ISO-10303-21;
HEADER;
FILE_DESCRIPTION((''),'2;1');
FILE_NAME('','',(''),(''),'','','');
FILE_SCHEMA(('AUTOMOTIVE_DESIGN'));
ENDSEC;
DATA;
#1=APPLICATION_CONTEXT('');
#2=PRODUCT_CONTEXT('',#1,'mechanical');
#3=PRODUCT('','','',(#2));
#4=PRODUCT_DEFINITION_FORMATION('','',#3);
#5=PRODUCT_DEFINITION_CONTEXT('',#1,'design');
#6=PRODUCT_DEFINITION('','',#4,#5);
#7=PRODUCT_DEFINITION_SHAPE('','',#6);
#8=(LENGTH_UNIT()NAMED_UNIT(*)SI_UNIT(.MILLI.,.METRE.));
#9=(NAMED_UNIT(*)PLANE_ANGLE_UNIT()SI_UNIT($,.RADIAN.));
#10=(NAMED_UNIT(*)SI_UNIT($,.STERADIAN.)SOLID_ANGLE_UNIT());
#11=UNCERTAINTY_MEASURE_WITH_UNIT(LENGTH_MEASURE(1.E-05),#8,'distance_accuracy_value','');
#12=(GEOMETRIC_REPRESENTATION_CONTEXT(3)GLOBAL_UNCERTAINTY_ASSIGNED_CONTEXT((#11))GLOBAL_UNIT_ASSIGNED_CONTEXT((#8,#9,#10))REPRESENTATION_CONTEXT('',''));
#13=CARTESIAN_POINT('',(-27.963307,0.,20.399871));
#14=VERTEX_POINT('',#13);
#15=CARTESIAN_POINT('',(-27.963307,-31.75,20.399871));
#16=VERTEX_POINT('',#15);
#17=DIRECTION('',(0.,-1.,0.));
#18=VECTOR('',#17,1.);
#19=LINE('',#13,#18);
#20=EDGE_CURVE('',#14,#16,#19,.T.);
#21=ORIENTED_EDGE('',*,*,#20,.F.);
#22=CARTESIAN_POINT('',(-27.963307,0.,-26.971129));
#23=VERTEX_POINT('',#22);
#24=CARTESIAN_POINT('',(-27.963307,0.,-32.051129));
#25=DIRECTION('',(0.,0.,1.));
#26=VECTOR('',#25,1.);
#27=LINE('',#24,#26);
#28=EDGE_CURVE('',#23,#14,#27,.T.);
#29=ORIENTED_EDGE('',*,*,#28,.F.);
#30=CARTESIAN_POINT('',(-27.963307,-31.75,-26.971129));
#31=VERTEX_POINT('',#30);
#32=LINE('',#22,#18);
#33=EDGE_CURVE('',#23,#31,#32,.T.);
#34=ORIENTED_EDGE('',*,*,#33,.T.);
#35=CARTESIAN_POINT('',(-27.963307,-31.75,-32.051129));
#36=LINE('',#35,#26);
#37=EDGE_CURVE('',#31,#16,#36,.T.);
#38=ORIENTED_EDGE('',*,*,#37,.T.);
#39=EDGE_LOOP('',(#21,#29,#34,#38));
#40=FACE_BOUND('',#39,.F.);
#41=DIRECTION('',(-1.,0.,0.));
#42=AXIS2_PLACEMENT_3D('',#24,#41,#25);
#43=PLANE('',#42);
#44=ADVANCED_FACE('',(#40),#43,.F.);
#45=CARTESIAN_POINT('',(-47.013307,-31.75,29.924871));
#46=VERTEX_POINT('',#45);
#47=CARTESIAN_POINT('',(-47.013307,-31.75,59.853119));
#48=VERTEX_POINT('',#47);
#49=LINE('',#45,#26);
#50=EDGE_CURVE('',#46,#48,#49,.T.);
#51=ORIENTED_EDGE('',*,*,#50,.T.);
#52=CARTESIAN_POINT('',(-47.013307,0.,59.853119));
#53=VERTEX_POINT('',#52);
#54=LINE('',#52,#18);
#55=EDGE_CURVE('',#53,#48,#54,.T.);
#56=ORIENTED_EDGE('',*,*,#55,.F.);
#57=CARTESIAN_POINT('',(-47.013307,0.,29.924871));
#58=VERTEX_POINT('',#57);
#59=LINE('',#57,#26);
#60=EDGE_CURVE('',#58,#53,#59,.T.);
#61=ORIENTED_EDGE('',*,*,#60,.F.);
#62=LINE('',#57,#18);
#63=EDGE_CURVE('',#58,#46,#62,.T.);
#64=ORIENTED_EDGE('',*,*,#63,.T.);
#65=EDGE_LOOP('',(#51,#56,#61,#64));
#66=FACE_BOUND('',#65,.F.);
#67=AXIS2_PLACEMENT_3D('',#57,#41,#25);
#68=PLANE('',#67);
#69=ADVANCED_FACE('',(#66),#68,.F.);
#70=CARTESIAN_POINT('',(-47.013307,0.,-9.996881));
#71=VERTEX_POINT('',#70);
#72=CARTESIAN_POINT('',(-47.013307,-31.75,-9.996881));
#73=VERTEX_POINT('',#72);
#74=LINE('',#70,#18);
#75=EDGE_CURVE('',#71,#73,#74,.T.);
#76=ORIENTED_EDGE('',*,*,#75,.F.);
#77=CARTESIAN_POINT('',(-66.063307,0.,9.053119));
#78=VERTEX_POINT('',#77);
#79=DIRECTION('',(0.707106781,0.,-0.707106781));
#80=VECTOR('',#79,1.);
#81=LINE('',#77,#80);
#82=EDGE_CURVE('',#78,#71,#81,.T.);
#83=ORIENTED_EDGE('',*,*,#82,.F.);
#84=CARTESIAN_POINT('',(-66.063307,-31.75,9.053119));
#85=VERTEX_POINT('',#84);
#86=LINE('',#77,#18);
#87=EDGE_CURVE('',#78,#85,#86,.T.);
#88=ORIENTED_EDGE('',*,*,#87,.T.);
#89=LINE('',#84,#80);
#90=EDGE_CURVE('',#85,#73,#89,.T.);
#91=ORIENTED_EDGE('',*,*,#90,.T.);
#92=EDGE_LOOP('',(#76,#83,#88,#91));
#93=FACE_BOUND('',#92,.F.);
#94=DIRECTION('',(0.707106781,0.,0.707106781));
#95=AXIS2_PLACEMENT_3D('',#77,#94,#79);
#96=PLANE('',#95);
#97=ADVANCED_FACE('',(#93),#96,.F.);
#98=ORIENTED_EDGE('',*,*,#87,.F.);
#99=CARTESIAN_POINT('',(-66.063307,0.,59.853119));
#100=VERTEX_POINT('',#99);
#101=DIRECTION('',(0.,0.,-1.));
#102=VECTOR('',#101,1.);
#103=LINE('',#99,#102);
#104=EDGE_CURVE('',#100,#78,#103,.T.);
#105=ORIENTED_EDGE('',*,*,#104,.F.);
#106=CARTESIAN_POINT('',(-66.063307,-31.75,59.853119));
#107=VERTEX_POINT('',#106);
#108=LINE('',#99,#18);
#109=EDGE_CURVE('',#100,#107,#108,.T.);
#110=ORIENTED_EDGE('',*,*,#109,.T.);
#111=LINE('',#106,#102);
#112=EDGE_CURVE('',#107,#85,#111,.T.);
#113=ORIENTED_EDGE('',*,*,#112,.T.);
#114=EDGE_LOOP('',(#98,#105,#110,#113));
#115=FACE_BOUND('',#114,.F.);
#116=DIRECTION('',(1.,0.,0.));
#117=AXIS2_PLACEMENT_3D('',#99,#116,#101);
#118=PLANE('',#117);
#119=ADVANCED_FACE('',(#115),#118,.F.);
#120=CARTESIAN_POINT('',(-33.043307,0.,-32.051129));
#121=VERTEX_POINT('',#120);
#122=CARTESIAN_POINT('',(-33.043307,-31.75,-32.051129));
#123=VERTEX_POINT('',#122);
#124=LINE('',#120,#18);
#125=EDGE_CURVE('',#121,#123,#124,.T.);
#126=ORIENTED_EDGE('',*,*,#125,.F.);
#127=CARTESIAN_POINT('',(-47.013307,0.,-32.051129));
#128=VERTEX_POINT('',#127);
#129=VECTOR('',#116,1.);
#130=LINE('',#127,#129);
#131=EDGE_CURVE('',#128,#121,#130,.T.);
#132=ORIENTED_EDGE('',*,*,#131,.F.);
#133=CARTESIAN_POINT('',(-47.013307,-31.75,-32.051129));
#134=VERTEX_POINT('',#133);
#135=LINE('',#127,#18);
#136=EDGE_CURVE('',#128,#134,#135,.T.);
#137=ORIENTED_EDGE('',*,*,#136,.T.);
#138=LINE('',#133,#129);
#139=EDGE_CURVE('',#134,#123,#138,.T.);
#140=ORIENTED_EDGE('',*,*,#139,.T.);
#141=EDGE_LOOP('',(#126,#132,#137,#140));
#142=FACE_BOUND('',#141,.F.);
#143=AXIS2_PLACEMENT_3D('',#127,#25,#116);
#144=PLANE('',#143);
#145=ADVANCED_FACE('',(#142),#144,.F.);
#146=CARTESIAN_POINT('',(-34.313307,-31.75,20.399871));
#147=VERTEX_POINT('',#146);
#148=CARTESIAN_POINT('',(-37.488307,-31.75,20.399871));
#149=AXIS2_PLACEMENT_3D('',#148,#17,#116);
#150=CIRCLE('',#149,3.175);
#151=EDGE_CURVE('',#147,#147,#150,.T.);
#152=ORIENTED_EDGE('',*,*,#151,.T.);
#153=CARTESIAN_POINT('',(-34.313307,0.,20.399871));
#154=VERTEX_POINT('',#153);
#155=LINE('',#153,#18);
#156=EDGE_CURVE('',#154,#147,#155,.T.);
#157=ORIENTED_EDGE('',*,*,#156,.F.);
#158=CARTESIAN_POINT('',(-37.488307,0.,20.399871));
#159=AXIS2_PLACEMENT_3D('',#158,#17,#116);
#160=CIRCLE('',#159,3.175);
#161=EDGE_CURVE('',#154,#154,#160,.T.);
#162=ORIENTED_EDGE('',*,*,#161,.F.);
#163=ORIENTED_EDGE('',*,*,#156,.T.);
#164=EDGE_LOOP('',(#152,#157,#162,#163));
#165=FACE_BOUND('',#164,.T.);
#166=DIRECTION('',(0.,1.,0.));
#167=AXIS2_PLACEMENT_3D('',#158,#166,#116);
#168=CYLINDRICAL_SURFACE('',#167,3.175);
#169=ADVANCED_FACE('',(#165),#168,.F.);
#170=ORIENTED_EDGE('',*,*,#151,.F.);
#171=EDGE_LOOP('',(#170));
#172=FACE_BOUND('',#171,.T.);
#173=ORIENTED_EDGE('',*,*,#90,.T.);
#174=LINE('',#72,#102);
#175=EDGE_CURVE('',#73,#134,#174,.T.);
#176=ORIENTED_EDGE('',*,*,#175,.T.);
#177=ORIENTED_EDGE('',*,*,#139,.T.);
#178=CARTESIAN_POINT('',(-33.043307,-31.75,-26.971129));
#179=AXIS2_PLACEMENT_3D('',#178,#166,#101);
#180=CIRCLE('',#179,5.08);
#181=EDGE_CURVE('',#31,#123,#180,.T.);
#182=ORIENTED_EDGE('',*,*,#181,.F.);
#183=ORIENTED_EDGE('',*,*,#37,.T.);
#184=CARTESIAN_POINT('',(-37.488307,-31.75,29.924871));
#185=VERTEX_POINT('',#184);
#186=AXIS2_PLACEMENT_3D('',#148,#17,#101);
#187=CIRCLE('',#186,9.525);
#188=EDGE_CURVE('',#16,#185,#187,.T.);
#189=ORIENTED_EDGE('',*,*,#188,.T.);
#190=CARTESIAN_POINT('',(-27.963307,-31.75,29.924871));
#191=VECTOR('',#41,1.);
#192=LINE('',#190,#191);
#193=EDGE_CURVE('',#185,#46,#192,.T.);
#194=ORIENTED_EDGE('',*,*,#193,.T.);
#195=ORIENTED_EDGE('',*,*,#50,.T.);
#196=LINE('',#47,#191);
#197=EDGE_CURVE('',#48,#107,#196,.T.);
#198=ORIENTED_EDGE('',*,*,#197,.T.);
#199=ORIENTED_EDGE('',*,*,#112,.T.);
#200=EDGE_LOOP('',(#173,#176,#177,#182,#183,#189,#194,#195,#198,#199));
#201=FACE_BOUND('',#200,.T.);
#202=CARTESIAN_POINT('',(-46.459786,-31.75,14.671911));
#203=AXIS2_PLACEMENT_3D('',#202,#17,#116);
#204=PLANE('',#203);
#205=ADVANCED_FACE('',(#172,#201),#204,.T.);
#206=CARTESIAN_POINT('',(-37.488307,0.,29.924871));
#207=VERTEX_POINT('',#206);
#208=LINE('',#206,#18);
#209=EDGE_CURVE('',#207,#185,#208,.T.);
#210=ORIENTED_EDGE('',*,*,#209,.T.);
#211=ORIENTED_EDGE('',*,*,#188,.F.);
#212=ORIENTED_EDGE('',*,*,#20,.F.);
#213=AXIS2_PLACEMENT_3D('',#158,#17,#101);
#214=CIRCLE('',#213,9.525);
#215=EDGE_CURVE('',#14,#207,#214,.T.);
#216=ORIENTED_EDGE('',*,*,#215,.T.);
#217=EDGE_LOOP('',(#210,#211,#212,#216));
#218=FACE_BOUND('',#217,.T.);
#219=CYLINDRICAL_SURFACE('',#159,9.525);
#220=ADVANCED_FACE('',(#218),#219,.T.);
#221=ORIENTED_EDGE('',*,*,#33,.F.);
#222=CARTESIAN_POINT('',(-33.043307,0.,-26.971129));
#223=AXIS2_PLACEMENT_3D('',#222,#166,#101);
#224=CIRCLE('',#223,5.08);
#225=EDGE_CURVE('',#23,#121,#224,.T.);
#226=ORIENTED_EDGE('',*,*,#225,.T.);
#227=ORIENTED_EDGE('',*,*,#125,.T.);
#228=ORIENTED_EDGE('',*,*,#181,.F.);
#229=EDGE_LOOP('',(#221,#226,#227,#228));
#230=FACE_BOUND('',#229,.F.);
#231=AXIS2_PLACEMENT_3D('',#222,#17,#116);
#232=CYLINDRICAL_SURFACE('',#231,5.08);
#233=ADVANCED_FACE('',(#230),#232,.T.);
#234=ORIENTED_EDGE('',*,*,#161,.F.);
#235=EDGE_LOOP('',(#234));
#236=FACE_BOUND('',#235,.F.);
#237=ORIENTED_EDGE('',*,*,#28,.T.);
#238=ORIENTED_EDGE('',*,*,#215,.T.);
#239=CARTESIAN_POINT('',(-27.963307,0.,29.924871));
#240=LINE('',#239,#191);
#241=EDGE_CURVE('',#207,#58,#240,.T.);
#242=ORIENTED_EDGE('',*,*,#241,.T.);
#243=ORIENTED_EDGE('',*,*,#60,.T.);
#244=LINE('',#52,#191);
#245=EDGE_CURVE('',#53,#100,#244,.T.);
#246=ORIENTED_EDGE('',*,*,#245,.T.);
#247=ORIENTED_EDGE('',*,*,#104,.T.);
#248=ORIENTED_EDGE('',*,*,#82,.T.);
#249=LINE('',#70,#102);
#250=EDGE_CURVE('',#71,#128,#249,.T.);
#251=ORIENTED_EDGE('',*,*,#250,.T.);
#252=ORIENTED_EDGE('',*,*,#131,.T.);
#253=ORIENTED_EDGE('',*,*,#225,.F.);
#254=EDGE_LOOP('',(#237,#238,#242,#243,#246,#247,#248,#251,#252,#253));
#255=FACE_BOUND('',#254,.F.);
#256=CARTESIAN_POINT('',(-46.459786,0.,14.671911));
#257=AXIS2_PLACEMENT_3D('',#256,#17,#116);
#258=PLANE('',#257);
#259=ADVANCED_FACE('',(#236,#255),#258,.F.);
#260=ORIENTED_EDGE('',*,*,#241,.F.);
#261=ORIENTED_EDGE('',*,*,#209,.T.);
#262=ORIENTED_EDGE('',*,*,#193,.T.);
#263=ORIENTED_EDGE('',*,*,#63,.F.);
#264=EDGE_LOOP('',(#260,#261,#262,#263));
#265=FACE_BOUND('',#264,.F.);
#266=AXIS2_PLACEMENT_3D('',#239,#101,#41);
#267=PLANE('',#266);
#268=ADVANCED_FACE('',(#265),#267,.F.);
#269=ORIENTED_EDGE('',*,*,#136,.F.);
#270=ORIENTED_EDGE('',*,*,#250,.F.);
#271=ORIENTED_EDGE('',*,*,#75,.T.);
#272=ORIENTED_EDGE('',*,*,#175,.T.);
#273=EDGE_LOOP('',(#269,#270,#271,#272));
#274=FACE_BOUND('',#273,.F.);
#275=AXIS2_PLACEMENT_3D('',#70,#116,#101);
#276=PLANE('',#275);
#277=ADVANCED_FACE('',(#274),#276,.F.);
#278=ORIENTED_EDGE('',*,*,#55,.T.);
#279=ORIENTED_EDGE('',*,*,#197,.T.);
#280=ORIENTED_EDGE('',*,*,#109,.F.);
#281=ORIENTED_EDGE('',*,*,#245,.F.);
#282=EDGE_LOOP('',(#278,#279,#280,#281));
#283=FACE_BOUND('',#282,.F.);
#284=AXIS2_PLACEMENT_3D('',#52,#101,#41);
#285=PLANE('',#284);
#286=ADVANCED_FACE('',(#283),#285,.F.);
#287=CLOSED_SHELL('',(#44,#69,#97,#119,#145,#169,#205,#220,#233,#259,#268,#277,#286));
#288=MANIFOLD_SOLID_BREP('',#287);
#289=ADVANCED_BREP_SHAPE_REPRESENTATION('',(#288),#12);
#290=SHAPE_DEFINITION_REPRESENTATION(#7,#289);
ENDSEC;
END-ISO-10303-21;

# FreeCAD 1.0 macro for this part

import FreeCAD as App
import Part
import Sketcher
from FreeCAD import Vector
Q = App.Units.Quantity


def edges_at(feature, points):
    """Names of the edges that pass closest to the given points."""
    edges = feature.Shape.Edges
    near = lambda p: min(range(len(edges)), key=lambda i: edges[i].distToShape(Part.Vertex(*p))[0])
    return sorted({f"Edge{near(p) + 1}" for p in points})


def add_polygon(sketch, points):
    """Adds a closed chain of lines whose ends are joined by coincident constraints."""
    first, n = sketch.GeometryCount, len(points)
    for a, b in zip(points, points[1:] + points[:1]):
        sketch.addGeometry(Part.LineSegment(App.Vector(*a, 0), App.Vector(*b, 0)), False)
    for i in range(n):
        sketch.addConstraint(Sketcher.Constraint("Coincident", first + i, 2, first + (i + 1) % n, 1))

doc = App.newDocument("Part")
body = doc.addObject("PartDesign::Body", "Body")

sketch1 = body.newObject("Sketcher::SketchObject", "Sketch")
sketch1.AttachmentSupport = (doc.getObject("XZ_Plane"), [""])
sketch1.MapMode = "FlatFace"
add_polygon(sketch1, [(-27.963307, 29.924871), (-47.013307, 29.924871), (-47.013307, 59.853119), (-66.063307, 59.853119), (-66.063307, 9.053119), (-47.013307, -9.996881), (-47.013307, -32.051129), (-27.963307, -32.051129)])
sketch1.addGeometry(Part.Circle(Vector(-37.488307, 20.399871, 0), Vector(0, 0, 1), 3.175), False)
sketch1.addConstraint(Sketcher.Constraint("Horizontal", 0))
sketch1.addConstraint(Sketcher.Constraint("Vertical", 1))
sketch1.addConstraint(Sketcher.Constraint("Horizontal", 2))
sketch1.addConstraint(Sketcher.Constraint("Vertical", 3))
sketch1.addConstraint(Sketcher.Constraint("Vertical", 5))
sketch1.addConstraint(Sketcher.Constraint("Horizontal", 6))
sketch1.addConstraint(Sketcher.Constraint("Vertical", 7))
sketch1.addConstraint(Sketcher.Constraint("Vertical", 1, 2, 4, 2))
sketch1.addConstraint(Sketcher.Constraint("Equal", 0, 2))
sketch1.addConstraint(Sketcher.Constraint("Diameter", 8, Q("0.25 in")))
sketch1.addConstraint(Sketcher.Constraint("DistanceY", 3, 2, 3, 1, Q("2 in")))
sketch1.addConstraint(Sketcher.Constraint("Angle", 4, Q("-45 deg")))
sketch1.addConstraint(Sketcher.Constraint("DistanceX", 0, 2, 0, 1, Q("0.75 in")))
sketch1.addConstraint(Sketcher.Constraint("DistanceY", 7, 1, 7, 2, Q("2.44 in")))
sketch1.addConstraint(Sketcher.Constraint("DistanceX", 0, 2, 8, 3, Q("0.375 in")))
sketch1.addConstraint(Sketcher.Constraint("DistanceY", 8, 3, 0, 2, Q("0.375 in")))
sketch1.addConstraint(Sketcher.Constraint("DistanceY", 1, 1, 1, 2, Q("29.928248 mm")))
sketch1.addConstraint(Sketcher.Constraint("DistanceY", -1, 1, 8, 3, Q("20.399871 mm")))
sketch1.addConstraint(Sketcher.Constraint("DistanceX", 8, 3, -1, 1, Q("37.488307 mm")))
pad1 = body.newObject("PartDesign::Pad", "Pad")
pad1.Profile = sketch1
pad1.Length = Q("1.25 in")
doc.recompute()

fillet = body.newObject("PartDesign::Fillet", "Fillet")
fillet.Base = (pad1, edges_at(pad1, [(-27.963, -15.875, -32.051)]))
fillet.Radius = Q("0.2 in")
doc.recompute()

fillet2 = body.newObject("PartDesign::Fillet", "Fillet001")
fillet2.Base = (fillet, edges_at(fillet, [(-27.963, -15.875, 29.925)]))
fillet2.Radius = Q("0.375 in")

doc.recompute()
